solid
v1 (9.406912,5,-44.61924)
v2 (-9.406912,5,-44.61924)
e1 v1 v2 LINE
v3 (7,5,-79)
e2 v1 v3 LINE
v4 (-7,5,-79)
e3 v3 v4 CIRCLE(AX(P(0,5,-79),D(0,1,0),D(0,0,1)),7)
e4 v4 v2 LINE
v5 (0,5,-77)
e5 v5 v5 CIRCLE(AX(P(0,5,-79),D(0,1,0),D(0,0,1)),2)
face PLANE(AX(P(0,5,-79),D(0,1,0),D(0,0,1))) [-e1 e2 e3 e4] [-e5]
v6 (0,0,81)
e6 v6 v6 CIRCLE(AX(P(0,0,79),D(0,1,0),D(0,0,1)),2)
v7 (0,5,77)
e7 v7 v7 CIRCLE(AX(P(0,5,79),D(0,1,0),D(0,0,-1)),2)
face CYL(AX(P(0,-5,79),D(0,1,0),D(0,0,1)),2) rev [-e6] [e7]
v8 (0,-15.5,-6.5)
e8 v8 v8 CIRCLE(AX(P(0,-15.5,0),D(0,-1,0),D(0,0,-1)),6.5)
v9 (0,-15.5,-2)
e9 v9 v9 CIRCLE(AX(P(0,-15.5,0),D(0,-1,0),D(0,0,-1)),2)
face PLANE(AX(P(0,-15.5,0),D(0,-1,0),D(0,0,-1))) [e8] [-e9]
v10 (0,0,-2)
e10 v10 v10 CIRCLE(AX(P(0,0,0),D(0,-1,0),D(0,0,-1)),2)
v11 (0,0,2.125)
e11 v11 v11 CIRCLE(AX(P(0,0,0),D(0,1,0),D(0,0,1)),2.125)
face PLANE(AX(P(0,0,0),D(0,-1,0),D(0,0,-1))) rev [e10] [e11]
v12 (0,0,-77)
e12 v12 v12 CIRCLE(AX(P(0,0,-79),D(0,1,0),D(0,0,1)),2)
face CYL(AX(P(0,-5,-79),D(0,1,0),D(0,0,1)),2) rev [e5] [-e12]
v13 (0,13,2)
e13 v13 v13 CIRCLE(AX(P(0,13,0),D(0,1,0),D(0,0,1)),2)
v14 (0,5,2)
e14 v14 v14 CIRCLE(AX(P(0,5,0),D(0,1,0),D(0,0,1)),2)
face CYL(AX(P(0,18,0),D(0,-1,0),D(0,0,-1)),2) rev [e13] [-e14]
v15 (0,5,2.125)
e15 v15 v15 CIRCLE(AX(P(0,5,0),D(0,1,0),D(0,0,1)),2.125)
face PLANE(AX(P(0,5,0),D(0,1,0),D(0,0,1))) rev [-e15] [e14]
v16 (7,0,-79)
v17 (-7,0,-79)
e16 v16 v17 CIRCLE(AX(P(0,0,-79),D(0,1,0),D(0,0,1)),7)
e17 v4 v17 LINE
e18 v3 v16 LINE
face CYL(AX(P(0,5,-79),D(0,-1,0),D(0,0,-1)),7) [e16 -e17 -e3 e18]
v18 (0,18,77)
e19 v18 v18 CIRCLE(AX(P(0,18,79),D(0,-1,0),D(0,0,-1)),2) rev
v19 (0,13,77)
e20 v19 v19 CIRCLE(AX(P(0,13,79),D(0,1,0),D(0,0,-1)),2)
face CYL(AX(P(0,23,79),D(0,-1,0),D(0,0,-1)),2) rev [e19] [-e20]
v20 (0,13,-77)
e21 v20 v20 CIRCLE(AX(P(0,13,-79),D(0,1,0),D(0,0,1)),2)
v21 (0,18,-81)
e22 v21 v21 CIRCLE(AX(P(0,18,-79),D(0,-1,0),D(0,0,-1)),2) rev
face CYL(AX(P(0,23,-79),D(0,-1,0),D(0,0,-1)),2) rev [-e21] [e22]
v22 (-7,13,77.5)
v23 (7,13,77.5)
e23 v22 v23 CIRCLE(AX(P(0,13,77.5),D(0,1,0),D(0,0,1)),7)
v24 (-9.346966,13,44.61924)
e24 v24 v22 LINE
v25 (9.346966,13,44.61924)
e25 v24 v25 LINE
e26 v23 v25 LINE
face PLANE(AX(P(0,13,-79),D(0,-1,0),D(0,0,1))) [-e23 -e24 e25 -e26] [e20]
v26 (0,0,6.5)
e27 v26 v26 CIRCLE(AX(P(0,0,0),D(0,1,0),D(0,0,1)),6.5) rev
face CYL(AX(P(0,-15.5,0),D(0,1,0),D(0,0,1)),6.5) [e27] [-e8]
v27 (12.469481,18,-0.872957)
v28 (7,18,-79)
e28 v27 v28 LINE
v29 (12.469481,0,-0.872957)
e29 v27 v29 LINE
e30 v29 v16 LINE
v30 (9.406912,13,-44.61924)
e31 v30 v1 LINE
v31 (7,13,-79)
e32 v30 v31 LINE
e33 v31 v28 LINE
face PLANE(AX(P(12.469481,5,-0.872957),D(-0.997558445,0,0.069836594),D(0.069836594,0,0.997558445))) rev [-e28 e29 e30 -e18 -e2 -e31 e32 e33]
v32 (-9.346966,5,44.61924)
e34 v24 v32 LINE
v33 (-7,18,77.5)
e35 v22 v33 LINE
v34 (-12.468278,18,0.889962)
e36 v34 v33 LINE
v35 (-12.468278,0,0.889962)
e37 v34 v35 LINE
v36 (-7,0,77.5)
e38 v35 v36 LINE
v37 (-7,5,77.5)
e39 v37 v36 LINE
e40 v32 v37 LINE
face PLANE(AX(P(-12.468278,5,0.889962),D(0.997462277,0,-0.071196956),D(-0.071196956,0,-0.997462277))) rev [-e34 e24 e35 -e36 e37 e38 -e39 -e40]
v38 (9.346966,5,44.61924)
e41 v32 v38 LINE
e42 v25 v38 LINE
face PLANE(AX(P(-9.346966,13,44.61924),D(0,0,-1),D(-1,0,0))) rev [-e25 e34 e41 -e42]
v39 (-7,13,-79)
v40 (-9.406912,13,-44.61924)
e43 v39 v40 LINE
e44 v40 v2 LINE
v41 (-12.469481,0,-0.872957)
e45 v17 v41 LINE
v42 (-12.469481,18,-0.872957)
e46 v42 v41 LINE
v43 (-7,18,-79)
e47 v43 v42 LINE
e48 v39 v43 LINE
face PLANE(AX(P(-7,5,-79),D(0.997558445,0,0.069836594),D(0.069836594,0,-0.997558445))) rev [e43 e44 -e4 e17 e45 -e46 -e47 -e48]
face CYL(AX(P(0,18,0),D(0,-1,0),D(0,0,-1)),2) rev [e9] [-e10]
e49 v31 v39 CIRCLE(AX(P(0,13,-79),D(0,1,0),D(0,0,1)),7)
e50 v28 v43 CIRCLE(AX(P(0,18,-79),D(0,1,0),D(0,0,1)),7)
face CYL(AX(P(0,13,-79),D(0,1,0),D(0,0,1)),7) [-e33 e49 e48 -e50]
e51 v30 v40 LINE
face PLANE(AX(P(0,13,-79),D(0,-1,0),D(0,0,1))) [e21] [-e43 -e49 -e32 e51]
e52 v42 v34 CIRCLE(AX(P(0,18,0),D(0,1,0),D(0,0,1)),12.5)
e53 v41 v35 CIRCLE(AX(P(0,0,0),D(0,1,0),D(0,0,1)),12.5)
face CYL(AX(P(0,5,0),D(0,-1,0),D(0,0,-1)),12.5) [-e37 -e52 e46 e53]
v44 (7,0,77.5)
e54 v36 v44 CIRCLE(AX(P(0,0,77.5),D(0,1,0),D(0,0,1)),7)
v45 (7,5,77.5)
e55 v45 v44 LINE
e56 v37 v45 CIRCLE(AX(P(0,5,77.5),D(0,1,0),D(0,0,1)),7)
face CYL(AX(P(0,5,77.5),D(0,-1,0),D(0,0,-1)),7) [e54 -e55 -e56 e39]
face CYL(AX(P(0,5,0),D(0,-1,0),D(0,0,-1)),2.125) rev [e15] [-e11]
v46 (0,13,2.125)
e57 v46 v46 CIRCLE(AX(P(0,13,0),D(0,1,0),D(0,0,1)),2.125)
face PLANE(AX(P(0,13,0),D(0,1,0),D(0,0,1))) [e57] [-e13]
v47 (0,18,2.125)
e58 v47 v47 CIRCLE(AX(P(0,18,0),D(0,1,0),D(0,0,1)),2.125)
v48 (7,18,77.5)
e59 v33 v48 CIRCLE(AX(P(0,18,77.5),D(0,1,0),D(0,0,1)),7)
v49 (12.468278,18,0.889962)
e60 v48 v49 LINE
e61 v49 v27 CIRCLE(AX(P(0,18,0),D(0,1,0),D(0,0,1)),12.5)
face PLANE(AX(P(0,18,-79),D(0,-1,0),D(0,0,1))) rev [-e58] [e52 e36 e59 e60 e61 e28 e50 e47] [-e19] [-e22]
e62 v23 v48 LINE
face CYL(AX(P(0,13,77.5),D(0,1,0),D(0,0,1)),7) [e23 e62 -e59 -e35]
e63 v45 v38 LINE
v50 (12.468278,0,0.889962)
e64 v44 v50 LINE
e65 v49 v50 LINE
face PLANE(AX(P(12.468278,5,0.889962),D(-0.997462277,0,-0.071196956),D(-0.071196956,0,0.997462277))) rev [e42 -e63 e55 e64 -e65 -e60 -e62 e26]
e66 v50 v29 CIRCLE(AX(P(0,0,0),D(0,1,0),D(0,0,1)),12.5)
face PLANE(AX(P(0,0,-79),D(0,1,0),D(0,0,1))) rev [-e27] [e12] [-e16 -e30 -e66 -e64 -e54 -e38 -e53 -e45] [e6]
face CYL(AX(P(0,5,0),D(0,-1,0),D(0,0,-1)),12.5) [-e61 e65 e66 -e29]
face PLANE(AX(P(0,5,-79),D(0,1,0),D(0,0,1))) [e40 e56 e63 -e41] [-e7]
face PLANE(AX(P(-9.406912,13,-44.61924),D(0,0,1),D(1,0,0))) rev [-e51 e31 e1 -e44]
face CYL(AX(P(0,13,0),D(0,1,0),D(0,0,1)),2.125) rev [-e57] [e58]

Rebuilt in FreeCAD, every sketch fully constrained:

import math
import FreeCAD as App
import Part
import Sketcher

V = App.Vector

doc = App.newDocument("Part")
body = doc.addObject("PartDesign::Body", "Body")

# Sketch on XZ plane
sketch1 = body.newObject("Sketcher::SketchObject", "Sketch")
sketch1.AttachmentSupport = (doc.getObject("XZ_Plane"), [""])
sketch1.MapMode = "FlatFace"
sketch1.addGeometry([
    Part.LineSegment(V(-7, -79, 0), V(-12.5, -0.9, 0)),  # 0
    Part.ArcOfCircle(Part.Circle(V(0, 0, 0), V(0, 0, 1), 12.5), math.radians(175.92), math.radians(184)),  # 1
    Part.LineSegment(V(-12.5, 0.9, 0), V(-7, 77.5, 0)),  # 2
    Part.ArcOfCircle(Part.Circle(V(0, 77.5, 0), V(0, 0, 1), 7), math.radians(0), math.radians(180)),  # 3
    Part.LineSegment(V(7, 77.5, 0), V(12.5, 0.9, 0)),  # 4
    Part.ArcOfCircle(Part.Circle(V(0, 0, 0), V(0, 0, 1), 12.5), math.radians(-4), math.radians(4.08)),  # 5
    Part.LineSegment(V(12.5, -0.9, 0), V(7, -79, 0)),  # 6
    Part.ArcOfCircle(Part.Circle(V(0, -79, 0), V(0, 0, 1), 7), math.radians(180), math.radians(360)),  # 7
    Part.Circle(V(0, 0, 0), V(0, 0, 1), 2.1),  # 8
], False)
sketch1.addConstraint([
    Sketcher.Constraint("Tangent", 0, 2, 1, 2),
    Sketcher.Constraint("Tangent", 1, 1, 2, 1),
    Sketcher.Constraint("Coincident", 2, 2, 3, 2),
    Sketcher.Constraint("Coincident", 3, 1, 4, 1),
    Sketcher.Constraint("Tangent", 4, 2, 5, 2),
    Sketcher.Constraint("Tangent", 5, 1, 6, 1),
    Sketcher.Constraint("Coincident", 6, 2, 7, 2),
    Sketcher.Constraint("Coincident", 7, 1, 0, 1),
    Sketcher.Constraint("Coincident", 1, 3, -1, 1),
    Sketcher.Constraint("Coincident", 5, 3, -1, 1),
    Sketcher.Constraint("Coincident", 8, 3, -1, 1),
    Sketcher.Constraint("Equal", 1, 5),
    Sketcher.Constraint("Equal", 3, 7),
    Sketcher.Constraint("Symmetric", 2, 2, 3, 1, -2),
    Sketcher.Constraint("Symmetric", 6, 2, 7, 1, -2),
    Sketcher.Constraint("Horizontal", 3, 3, 2, 2),
    Sketcher.Constraint("Horizontal", 7, 3, 6, 2),
    Sketcher.Constraint("Radius", 3, 7.0),
    Sketcher.Constraint("Radius", 1, 12.5),
    Sketcher.Constraint("Diameter", 8, 4.25),
    Sketcher.Constraint("DistanceY", 7, 3, -1, 1, 79.0),
    Sketcher.Constraint("DistanceY", -1, 1, 3, 3, 77.5),
])
pad1 = body.newObject("PartDesign::Pad", "Pad")
pad1.Profile = sketch1
pad1.Length = 5
pad1.Reversed = True

# Sketch on XZ plane
sketch2 = body.newObject("Sketcher::SketchObject", "Sketch001")
sketch2.AttachmentSupport = (doc.getObject("XZ_Plane"), [""])
sketch2.MapMode = "FlatFace"
sketch2.AttachmentOffset = App.Placement(V(0, 0, -5), App.Rotation())
sketch2.addGeometry([
    Part.Circle(V(0, -79, 0), V(0, 0, 1), 2),
    Part.Circle(V(0, 79, 0), V(0, 0, 1), 2),
], False)
sketch2.addConstraint([
    Sketcher.Constraint("Equal", 0, 1),
    Sketcher.Constraint("Symmetric", 0, 3, 1, 3, -1, 1),
    Sketcher.Constraint("PointOnObject", 0, 3, -2),
    Sketcher.Constraint("Diameter", 0, 4.0),
    Sketcher.Constraint("DistanceY", 0, 3, -1, 1, 79.0),
])
pocket1 = body.newObject("PartDesign::Pocket", "Pocket")
pocket1.Profile = sketch2
pocket1.Length = 10
pocket1.Reversed = True

# Sketch on XZ plane
sketch3 = body.newObject("Sketcher::SketchObject", "Sketch002")
sketch3.AttachmentSupport = (doc.getObject("XZ_Plane"), [""])
sketch3.MapMode = "FlatFace"
sketch3.addGeometry(Part.Circle(V(0, 0, 0), V(0, 0, 1), 6), False)
sketch3.addConstraint([
    Sketcher.Constraint("Coincident", 0, 3, -1, 1),
    Sketcher.Constraint("Diameter", 0, 13.0),
])
pad2 = body.newObject("PartDesign::Pad", "Pad001")
pad2.Profile = sketch3
pad2.Length = 15.5

# Sketch on XZ plane
sketch4 = body.newObject("Sketcher::SketchObject", "Sketch003")
sketch4.AttachmentSupport = (doc.getObject("XZ_Plane"), [""])
sketch4.MapMode = "FlatFace"
sketch4.AttachmentOffset = App.Placement(V(0, 0, -5), App.Rotation())
sketch4.addGeometry([
    Part.LineSegment(V(9.4, -44.6, 0), V(-9.4, -44.6, 0)),  # 0
    Part.LineSegment(V(-9.4, -44.6, 0), V(-12.5, -0.9, 0)),  # 1
    Part.ArcOfCircle(Part.Circle(V(0, 0, 0), V(0, 0, 1), 12.5), math.radians(175.92), math.radians(184)),  # 2
    Part.LineSegment(V(-12.5, 0.9, 0), V(-9.3, 44.6, 0)),  # 3
    Part.LineSegment(V(-9.3, 44.6, 0), V(9.3, 44.6, 0)),  # 4
    Part.LineSegment(V(9.3, 44.6, 0), V(12.5, 0.9, 0)),  # 5
    Part.ArcOfCircle(Part.Circle(V(0, 0, 0), V(0, 0, 1), 12.5), math.radians(-4), math.radians(4.08)),  # 6
    Part.LineSegment(V(12.5, -0.9, 0), V(9.4, -44.6, 0)),  # 7
], False)
sketch4.addConstraint([
    Sketcher.Constraint("Coincident", 0, 2, 1, 1),
    Sketcher.Constraint("Tangent", 1, 2, 2, 2),
    Sketcher.Constraint("Tangent", 2, 1, 3, 1),
    Sketcher.Constraint("Coincident", 3, 2, 4, 1),
    Sketcher.Constraint("Coincident", 4, 2, 5, 1),
    Sketcher.Constraint("Tangent", 5, 2, 6, 2),
    Sketcher.Constraint("Tangent", 6, 1, 7, 1),
    Sketcher.Constraint("Coincident", 7, 2, 0, 1),
    Sketcher.Constraint("Horizontal", 0),
    Sketcher.Constraint("Horizontal", 4),
    Sketcher.Constraint("Coincident", 2, 3, -1, 1),
    Sketcher.Constraint("Coincident", 6, 3, -1, 1),
    Sketcher.Constraint("Equal", 2, 6),
    Sketcher.Constraint("Horizontal", 2, 1, 5, 2),
    Sketcher.Constraint("Horizontal", 1, 2, 6, 1),
    Sketcher.Constraint("Radius", 2, 12.5),
    Sketcher.Constraint("DistanceX", 4, 1, 4, 2, 18.693932),
    Sketcher.Constraint("DistanceY", 0, 2, 2, 1, 45.509202),
    Sketcher.Constraint("DistanceX", 0, 2, 0, 1, 18.813824),
    Sketcher.Constraint("DistanceY", 0, 2, -1, 1, 44.61924),
])
pad3 = body.newObject("PartDesign::Pad", "Pad002")
pad3.Profile = sketch4
pad3.Length = 8
pad3.Reversed = True
doc.recompute()

datumplane = body.newObject("PartDesign::Plane", "DatumPlane")
datumplane.AttachmentSupport = (doc.getObject("XZ_Plane"), [""])
datumplane.MapMode = "FlatFace"
datumplane.AttachmentOffset = App.Placement(V(0, 0, -9), App.Rotation())
mirrored = body.newObject("PartDesign::Mirrored", "Mirrored")
mirrored.Originals = [pad1, pocket1]
mirrored.MirrorPlane = (datumplane, [""])
body.Tip = mirrored

# Sketch on XZ plane
sketch5 = body.newObject("Sketcher::SketchObject", "Sketch004")
sketch5.AttachmentSupport = (doc.getObject("XZ_Plane"), [""])
sketch5.MapMode = "FlatFace"
sketch5.AttachmentOffset = App.Placement(V(0, 0, 15.5), App.Rotation())
sketch5.addGeometry(Part.Circle(V(0, 0, 0), V(0, 0, 1), 2), False)
sketch5.addConstraint([
    Sketcher.Constraint("Coincident", 0, 3, -1, 1),
    Sketcher.Constraint("Diameter", 0, 4.0),
])
pocket2 = body.newObject("PartDesign::Pocket", "Pocket001")
pocket2.Profile = sketch5
pocket2.Type = "ThroughAll"

doc.recompute()
